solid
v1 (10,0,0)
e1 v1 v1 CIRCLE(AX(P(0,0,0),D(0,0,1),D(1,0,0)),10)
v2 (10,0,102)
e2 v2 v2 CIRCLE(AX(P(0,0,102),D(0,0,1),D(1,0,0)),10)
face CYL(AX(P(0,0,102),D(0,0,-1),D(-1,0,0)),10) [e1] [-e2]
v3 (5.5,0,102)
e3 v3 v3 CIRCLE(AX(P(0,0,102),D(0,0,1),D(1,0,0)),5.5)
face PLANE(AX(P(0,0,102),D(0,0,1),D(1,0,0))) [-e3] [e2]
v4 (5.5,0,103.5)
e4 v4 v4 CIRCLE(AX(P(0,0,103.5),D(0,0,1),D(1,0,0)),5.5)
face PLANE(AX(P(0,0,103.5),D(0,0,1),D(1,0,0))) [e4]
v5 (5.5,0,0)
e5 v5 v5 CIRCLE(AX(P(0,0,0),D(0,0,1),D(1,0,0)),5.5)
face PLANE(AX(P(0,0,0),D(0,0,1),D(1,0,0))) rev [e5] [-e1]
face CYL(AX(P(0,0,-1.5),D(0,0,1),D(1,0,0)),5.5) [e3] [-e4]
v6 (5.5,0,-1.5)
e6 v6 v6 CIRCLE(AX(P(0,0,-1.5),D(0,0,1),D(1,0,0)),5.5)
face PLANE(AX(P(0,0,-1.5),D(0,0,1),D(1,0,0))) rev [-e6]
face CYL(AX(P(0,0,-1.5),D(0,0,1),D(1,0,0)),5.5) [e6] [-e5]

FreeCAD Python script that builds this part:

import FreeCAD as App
import Part
import Sketcher
from FreeCAD import Vector

doc = App.newDocument("Part")
body = doc.addObject("PartDesign::Body", "Body")

# Sketch on XY plane
sketch1 = doc.addObject("Sketcher::SketchObject", "Sketch")
body.addObject(sketch1)
sketch1.AttachmentSupport = (doc.XY_Plane, [""])
sketch1.MapMode = "FlatFace"
sketch1.addGeometry(Part.Circle(Vector(0, 0, 0), Vector(0, 0, 1), 10), False)
sketch1.addConstraint([
    Sketcher.Constraint("Coincident", 0, 3, -1, 1),
    Sketcher.Constraint("Diameter", 0, 20.0),
])
pad1 = doc.addObject("PartDesign::Pad", "Pad")
body.addObject(pad1)
pad1.Profile = sketch1
pad1.Length = 102

# Sketch on XY plane
sketch2 = doc.addObject("Sketcher::SketchObject", "Sketch001")
body.addObject(sketch2)
sketch2.AttachmentSupport = (doc.XY_Plane, [""])
sketch2.MapMode = "FlatFace"
sketch2.AttachmentOffset = App.Placement(Vector(0, 0, 102), App.Rotation())
sketch2.addGeometry(Part.Circle(Vector(0, 0, 0), Vector(0, 0, 1), 5.5), False)
sketch2.addConstraint([
    Sketcher.Constraint("Coincident", 0, 3, -1, 1),
    Sketcher.Constraint("Diameter", 0, 11.0),
])
pad2 = doc.addObject("PartDesign::Pad", "Pad001")
body.addObject(pad2)
pad2.Profile = sketch2
pad2.Type = "TwoLengths"
pad2.Length = 1.5
pad2.Length2 = 103.5

doc.recompute()
